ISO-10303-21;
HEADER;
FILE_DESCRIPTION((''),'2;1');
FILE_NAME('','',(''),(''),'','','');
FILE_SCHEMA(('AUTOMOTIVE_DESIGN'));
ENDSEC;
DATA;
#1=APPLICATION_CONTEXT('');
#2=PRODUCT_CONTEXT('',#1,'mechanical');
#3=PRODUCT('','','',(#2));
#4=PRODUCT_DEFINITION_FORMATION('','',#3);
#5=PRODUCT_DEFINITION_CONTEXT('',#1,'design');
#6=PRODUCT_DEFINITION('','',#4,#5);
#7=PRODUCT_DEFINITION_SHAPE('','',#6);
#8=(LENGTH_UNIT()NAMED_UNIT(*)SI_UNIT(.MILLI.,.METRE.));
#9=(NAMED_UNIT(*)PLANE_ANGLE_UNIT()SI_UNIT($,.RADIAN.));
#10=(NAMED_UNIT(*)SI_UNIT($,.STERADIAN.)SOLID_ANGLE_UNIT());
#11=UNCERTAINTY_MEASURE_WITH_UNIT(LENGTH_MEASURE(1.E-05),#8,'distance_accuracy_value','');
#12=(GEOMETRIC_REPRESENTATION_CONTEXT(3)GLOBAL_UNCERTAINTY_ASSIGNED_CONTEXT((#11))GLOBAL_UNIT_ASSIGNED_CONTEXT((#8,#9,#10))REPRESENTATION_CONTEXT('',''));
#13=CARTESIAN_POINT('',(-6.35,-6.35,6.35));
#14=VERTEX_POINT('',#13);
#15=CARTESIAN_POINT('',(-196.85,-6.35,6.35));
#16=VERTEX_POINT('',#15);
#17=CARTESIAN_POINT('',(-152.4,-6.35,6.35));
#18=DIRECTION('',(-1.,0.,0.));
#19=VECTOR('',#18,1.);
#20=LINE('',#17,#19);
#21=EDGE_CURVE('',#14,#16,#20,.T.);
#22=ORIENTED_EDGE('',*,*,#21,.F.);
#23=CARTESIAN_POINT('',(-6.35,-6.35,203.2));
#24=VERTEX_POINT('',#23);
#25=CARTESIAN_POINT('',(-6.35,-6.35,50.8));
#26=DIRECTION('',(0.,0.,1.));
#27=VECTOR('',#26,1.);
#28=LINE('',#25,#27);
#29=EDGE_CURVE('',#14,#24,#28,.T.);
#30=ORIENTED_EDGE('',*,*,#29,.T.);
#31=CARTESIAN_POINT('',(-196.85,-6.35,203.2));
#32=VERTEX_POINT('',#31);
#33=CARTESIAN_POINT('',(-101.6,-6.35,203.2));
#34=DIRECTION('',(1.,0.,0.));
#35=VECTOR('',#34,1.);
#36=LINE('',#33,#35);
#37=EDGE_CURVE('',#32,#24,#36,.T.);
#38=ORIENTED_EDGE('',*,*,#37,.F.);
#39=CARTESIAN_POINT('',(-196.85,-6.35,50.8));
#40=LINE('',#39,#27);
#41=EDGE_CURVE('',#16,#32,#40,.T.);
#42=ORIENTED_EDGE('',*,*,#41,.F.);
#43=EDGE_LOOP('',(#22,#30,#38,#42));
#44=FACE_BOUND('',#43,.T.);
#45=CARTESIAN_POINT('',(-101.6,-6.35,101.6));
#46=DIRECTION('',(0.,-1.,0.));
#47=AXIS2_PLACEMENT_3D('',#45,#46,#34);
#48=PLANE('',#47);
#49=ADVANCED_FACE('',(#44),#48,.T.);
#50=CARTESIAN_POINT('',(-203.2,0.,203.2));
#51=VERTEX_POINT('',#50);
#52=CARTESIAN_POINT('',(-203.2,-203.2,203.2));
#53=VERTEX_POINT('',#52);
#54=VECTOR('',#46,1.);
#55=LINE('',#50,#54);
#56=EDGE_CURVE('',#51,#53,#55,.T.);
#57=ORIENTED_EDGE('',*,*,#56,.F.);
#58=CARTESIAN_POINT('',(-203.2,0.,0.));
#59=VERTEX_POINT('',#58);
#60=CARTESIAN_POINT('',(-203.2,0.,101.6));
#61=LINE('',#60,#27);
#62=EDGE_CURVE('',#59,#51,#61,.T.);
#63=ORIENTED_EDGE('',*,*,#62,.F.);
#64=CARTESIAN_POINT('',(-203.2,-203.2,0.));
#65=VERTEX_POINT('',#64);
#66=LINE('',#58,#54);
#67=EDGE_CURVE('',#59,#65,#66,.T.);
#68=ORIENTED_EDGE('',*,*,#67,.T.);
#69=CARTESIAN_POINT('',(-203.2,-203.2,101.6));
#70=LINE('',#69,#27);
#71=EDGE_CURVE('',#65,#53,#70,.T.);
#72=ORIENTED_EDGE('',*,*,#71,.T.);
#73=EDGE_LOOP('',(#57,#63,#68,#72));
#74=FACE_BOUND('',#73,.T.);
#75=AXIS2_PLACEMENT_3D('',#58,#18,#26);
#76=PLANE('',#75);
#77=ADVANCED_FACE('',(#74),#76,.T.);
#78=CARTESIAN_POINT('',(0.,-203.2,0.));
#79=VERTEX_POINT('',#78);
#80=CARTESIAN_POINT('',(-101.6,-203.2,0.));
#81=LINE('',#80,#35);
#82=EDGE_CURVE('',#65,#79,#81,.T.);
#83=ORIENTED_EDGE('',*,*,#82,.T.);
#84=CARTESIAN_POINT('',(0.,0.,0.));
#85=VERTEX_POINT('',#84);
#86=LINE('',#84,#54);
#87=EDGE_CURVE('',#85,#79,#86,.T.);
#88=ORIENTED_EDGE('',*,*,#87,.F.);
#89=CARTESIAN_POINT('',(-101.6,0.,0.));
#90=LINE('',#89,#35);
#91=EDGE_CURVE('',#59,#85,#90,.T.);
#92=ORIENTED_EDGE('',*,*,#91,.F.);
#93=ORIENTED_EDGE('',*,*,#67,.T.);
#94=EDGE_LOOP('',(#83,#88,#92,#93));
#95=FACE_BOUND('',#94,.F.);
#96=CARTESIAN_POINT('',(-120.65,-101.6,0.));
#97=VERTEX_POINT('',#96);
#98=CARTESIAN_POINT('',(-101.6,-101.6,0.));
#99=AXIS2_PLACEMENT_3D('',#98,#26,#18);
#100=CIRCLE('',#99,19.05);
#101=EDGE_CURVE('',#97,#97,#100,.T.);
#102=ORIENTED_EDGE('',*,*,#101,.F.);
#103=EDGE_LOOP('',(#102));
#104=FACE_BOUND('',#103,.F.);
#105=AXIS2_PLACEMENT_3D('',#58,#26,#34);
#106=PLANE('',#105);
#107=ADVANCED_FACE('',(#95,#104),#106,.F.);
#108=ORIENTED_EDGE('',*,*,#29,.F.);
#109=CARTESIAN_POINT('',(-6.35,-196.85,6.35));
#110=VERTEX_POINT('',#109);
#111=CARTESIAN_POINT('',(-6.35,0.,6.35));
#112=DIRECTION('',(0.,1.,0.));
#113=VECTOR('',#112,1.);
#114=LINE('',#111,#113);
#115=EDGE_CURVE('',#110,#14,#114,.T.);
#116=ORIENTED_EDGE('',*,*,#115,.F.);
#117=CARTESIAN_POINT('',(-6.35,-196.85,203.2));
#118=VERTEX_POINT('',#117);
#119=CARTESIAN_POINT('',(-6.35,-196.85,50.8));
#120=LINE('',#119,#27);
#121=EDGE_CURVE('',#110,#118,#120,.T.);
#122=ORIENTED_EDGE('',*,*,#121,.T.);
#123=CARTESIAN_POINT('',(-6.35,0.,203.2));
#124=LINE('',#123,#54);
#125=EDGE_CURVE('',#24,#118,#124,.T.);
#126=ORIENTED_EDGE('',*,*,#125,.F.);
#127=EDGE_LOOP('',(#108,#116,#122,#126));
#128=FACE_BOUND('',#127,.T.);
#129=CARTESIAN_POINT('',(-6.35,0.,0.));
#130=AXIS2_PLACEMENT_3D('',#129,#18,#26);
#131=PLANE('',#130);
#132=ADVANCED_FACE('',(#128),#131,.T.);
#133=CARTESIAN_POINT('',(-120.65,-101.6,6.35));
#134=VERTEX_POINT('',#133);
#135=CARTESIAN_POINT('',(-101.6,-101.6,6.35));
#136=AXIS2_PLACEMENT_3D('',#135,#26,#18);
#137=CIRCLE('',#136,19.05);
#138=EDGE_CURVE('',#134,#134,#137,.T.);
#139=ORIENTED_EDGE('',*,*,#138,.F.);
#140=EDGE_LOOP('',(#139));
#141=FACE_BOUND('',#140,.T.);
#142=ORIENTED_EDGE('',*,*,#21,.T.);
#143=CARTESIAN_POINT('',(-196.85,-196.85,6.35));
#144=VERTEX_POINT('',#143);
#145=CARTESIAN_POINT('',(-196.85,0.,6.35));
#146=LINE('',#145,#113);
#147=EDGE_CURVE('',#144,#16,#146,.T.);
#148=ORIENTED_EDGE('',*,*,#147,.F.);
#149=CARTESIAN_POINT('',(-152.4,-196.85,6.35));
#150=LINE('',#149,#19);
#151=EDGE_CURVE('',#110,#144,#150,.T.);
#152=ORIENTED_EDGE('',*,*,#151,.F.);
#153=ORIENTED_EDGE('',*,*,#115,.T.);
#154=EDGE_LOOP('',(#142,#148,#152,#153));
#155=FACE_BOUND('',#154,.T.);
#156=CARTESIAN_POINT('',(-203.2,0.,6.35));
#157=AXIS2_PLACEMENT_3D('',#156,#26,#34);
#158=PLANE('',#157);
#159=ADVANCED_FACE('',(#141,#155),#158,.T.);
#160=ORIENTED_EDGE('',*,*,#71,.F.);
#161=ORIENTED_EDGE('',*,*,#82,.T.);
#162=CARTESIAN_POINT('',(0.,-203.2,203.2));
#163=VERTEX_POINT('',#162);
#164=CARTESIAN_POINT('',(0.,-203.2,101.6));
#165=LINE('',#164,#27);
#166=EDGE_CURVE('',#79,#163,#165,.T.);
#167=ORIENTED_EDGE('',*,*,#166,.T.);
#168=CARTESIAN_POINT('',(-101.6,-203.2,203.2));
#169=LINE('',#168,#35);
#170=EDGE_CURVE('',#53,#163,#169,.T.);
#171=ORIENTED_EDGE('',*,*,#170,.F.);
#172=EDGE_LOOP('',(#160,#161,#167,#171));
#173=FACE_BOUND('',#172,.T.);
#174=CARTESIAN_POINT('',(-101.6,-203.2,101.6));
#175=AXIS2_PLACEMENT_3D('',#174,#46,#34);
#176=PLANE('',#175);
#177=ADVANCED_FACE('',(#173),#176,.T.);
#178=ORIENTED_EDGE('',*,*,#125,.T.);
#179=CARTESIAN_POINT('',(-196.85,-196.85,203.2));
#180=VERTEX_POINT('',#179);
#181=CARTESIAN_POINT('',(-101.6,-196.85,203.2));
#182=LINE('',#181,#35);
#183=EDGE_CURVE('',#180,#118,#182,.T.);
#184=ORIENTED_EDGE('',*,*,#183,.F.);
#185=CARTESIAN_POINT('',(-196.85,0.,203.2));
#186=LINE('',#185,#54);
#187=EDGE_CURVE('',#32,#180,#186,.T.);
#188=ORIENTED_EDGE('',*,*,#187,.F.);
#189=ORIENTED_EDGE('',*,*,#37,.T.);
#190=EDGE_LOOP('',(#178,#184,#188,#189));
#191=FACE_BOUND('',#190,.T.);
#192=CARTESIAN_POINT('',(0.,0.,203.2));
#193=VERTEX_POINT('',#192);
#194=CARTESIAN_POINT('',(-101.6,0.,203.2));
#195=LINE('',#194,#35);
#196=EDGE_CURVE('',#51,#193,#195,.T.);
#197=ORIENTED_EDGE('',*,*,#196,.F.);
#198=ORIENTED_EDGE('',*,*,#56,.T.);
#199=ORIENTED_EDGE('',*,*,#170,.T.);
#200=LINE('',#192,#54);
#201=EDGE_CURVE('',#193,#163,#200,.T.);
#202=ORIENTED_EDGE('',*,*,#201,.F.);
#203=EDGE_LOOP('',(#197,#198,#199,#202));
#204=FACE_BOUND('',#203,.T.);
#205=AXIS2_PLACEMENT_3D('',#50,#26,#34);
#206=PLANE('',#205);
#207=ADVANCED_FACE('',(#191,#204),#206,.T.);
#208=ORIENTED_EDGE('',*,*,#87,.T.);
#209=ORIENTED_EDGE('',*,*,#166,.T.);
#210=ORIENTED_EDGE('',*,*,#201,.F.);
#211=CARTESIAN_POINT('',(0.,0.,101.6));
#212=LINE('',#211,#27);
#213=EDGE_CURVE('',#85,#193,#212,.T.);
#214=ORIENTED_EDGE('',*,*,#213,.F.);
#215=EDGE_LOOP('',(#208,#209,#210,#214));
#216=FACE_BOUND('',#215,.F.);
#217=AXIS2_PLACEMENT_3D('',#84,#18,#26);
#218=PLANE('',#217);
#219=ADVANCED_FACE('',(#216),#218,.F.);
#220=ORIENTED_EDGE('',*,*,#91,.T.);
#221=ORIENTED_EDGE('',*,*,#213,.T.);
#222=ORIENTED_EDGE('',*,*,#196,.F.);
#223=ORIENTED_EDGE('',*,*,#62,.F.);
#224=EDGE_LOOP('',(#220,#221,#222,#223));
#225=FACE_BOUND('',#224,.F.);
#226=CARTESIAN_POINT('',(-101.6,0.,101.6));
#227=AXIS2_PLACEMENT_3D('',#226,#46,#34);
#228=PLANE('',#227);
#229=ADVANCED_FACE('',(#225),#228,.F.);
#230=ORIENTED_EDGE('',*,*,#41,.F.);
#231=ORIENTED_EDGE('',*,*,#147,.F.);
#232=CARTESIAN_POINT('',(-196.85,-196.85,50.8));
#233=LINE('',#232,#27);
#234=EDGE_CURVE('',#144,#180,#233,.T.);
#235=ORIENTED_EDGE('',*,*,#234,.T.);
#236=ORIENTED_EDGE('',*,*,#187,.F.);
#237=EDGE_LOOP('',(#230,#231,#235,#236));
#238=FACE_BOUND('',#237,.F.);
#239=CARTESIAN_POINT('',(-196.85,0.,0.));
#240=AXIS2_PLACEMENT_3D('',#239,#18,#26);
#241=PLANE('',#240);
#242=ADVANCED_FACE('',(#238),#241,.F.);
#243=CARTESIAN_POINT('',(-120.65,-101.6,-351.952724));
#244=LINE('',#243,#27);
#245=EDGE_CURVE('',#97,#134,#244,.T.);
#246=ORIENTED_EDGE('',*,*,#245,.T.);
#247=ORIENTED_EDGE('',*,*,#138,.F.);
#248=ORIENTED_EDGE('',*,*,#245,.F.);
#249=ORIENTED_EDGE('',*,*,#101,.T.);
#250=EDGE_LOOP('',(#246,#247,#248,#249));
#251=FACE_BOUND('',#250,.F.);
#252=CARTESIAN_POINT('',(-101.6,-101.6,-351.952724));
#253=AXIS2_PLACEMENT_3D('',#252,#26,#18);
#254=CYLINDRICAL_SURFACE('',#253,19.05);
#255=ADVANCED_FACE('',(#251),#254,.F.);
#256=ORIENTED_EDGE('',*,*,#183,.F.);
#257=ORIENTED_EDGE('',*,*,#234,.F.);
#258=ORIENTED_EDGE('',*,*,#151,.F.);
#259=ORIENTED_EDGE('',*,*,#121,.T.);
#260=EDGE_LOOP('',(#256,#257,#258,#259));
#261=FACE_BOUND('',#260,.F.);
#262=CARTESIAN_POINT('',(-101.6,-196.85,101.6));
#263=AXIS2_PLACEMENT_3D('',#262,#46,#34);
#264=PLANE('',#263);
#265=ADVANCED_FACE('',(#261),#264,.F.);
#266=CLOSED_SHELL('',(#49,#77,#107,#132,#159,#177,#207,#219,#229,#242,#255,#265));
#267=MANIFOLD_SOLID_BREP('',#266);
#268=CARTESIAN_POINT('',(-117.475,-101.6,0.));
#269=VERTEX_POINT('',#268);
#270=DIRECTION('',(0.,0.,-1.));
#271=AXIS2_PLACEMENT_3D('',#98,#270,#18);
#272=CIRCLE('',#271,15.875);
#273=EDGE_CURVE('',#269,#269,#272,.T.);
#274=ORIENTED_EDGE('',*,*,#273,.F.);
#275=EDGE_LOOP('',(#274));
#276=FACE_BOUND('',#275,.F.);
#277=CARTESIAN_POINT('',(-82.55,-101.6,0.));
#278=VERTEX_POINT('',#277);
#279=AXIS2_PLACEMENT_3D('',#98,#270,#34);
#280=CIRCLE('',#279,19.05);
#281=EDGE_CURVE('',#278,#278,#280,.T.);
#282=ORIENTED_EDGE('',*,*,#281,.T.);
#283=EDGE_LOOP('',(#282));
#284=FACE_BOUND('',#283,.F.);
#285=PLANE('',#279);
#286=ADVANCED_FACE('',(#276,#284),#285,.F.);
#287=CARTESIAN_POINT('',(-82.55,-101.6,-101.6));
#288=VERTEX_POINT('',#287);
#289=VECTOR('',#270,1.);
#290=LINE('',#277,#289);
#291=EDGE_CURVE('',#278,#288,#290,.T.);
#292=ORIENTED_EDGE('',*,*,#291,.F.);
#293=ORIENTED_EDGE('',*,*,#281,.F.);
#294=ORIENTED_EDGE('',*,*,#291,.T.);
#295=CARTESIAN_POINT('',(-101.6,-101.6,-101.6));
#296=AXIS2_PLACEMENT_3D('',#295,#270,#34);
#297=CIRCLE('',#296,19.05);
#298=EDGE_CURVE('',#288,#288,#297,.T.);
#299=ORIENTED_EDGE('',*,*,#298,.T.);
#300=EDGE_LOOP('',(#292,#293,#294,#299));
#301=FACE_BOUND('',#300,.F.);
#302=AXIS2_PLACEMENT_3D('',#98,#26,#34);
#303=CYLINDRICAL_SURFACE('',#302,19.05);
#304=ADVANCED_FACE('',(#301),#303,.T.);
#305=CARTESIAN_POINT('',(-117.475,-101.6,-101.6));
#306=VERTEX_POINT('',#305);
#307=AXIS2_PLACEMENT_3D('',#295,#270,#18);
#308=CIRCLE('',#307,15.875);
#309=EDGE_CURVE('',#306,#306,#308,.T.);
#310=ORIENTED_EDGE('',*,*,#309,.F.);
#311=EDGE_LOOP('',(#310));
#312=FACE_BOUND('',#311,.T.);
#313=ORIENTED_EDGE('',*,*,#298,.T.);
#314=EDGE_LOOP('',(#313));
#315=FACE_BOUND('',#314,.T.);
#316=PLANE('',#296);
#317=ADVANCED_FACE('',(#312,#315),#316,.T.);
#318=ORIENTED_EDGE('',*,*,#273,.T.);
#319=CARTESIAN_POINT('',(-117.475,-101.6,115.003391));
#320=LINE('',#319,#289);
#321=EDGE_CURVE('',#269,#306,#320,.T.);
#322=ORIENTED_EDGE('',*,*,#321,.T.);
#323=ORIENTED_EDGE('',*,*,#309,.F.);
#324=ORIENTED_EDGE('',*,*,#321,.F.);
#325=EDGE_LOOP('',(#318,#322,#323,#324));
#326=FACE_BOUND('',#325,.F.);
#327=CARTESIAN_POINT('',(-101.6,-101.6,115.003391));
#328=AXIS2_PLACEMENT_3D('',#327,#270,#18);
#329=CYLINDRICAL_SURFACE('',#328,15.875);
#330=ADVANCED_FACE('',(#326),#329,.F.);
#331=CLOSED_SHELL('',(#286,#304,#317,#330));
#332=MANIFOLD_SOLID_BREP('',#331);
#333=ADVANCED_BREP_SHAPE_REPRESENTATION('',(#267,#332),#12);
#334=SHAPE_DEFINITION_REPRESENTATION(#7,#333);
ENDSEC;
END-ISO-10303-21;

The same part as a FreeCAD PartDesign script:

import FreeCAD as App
import Part
import Sketcher
Q = App.Units.Quantity


def faces_at(feature, points):
    """Names of the faces that lie closest to the given points."""
    faces = feature.Shape.Faces
    near = lambda p: min(range(len(faces)), key=lambda i: faces[i].distToShape(Part.Vertex(*p))[0])
    return sorted({f"Face{near(p) + 1}" for p in points})

doc = App.newDocument("Part")
params = doc.addObject("Spreadsheet::Sheet", "Params")
for row, (alias, value) in enumerate([
    ("sketch1_width", "8 in"),
    ("pad1_length", "8 in"),
    ("thickness_wall", "0.25 in"),
    ("sketch2_diameter", "1.5 in"),
    ("hole_diameter", "1.5 in"),
    ("sketch3_diameter", "1.5 in"),
    ("pad2_length", "4 in"),
    ("sketch4_diameter", "1.25 in"),
    ("hole2_diameter", "1.25 in"),
], start=1):
    params.set(f"A{row}", alias)
    params.set(f"B{row}", "=" + value)
    params.setAlias(f"B{row}", alias)

body = doc.addObject("PartDesign::Body", "Body")

# Sketch on XZ plane
sketch1 = body.newObject("Sketcher::SketchObject", "Sketch")
sketch1.AttachmentSupport = (doc.getObject("XZ_Plane"), [""])
sketch1.MapMode = "FlatFace"
sketch1.addGeometry([
    Part.LineSegment(App.Vector(-203, 203, 0), App.Vector(-203, 0, 0)),
    Part.LineSegment(App.Vector(-203, 0, 0), App.Vector(0, 0, 0)),
    Part.LineSegment(App.Vector(0, 0, 0), App.Vector(0, 203, 0)),
    Part.LineSegment(App.Vector(0, 203, 0), App.Vector(-203, 203, 0)),
], False)
sketch1.addConstraint([
    Sketcher.Constraint("Coincident", 0, 2, 1, 1),
    Sketcher.Constraint("Coincident", 1, 2, 2, 1),
    Sketcher.Constraint("Coincident", 2, 2, 3, 1),
    Sketcher.Constraint("Coincident", 3, 2, 0, 1),
    Sketcher.Constraint("Vertical", 0),
    Sketcher.Constraint("Horizontal", 1),
    Sketcher.Constraint("Vertical", 2),
    Sketcher.Constraint("Horizontal", 3),
    Sketcher.Constraint("Coincident", 1, 2, -1, 1),
    Sketcher.Constraint("Equal", 3, 0),
    Sketcher.Constraint("DistanceX", 1, 1, 1, 2, Q("8 in")),
])
sketch1.setExpression("Constraints[10]", "Params.sketch1_width")
pad1 = body.newObject("PartDesign::Pad", "Pad")
pad1.Profile = sketch1
pad1.setExpression("Length", "Params.pad1_length")
doc.recompute()

thickness = body.newObject("PartDesign::Thickness", "Thickness")
thickness.Base = (pad1, faces_at(pad1, [(-101.6, -101.6, 203.2)]))
thickness.setExpression("Value", "Params.thickness_wall")
thickness.Reversed = True
thickness.Join = "Arc"

# Sketch on XY plane
sketch2 = body.newObject("Sketcher::SketchObject", "Sketch001")
sketch2.AttachmentSupport = (doc.getObject("XY_Plane"), [""])
sketch2.MapMode = "FlatFace"
sketch2.addGeometry(Part.Circle(App.Vector(-102, -102, 0), App.Vector(0, 0, 1), 19), False)
sketch2.addConstraint([
    Sketcher.Constraint("Diameter", 0, Q("1.5 in")),
    Sketcher.Constraint("DistanceX", 0, 3, -1, 1, Q("4 in")),
    Sketcher.Constraint("DistanceY", 0, 3, -1, 1, Q("4 in")),
])
sketch2.setExpression("Constraints[0]", "Params.sketch2_diameter")
doc.recompute()
hole = body.newObject("PartDesign::Hole", "Hole")
hole.Profile = sketch2
hole.ThreadType = "None"
hole.setExpression("Diameter", "Params.hole_diameter")
hole.DepthType = "ThroughAll"
hole.Reversed = True
body2 = doc.addObject("PartDesign::Body", "Body001")

# Sketch on XY plane
sketch3 = body2.newObject("Sketcher::SketchObject", "Sketch002")
sketch3.AttachmentSupport = (doc.getObject("XY_Plane001"), [""])
sketch3.MapMode = "FlatFace"
sketch3.addGeometry(Part.Circle(App.Vector(-102, -102, 0), App.Vector(0, 0, 1), 19), False)
sketch3.addConstraint([
    Sketcher.Constraint("Diameter", 0, Q("1.5 in")),
    Sketcher.Constraint("DistanceX", 0, 3, -1, 1, Q("4 in")),
    Sketcher.Constraint("DistanceY", 0, 3, -1, 1, Q("4 in")),
])
sketch3.setExpression("Constraints[0]", "Params.sketch3_diameter")
pad2 = body2.newObject("PartDesign::Pad", "Pad001")
pad2.Profile = sketch3
pad2.setExpression("Length", "Params.pad2_length")
pad2.Reversed = True

# Sketch on XY plane
sketch4 = body2.newObject("Sketcher::SketchObject", "Sketch003")
sketch4.AttachmentSupport = (doc.getObject("XY_Plane001"), [""])
sketch4.MapMode = "FlatFace"
sketch4.addGeometry(Part.Circle(App.Vector(-102, -102, 0), App.Vector(0, 0, 1), 16), False)
sketch4.addConstraint([
    Sketcher.Constraint("Diameter", 0, Q("1.25 in")),
    Sketcher.Constraint("DistanceX", 0, 3, -1, 1, Q("4 in")),
    Sketcher.Constraint("DistanceY", 0, 3, -1, 1, Q("4 in")),
])
sketch4.setExpression("Constraints[0]", "Params.sketch4_diameter")
doc.recompute()
hole2 = body2.newObject("PartDesign::Hole", "Hole001")
hole2.Profile = sketch4
hole2.ThreadType = "None"
hole2.setExpression("Diameter", "Params.hole2_diameter")
hole2.DepthType = "ThroughAll"

doc.recompute()
